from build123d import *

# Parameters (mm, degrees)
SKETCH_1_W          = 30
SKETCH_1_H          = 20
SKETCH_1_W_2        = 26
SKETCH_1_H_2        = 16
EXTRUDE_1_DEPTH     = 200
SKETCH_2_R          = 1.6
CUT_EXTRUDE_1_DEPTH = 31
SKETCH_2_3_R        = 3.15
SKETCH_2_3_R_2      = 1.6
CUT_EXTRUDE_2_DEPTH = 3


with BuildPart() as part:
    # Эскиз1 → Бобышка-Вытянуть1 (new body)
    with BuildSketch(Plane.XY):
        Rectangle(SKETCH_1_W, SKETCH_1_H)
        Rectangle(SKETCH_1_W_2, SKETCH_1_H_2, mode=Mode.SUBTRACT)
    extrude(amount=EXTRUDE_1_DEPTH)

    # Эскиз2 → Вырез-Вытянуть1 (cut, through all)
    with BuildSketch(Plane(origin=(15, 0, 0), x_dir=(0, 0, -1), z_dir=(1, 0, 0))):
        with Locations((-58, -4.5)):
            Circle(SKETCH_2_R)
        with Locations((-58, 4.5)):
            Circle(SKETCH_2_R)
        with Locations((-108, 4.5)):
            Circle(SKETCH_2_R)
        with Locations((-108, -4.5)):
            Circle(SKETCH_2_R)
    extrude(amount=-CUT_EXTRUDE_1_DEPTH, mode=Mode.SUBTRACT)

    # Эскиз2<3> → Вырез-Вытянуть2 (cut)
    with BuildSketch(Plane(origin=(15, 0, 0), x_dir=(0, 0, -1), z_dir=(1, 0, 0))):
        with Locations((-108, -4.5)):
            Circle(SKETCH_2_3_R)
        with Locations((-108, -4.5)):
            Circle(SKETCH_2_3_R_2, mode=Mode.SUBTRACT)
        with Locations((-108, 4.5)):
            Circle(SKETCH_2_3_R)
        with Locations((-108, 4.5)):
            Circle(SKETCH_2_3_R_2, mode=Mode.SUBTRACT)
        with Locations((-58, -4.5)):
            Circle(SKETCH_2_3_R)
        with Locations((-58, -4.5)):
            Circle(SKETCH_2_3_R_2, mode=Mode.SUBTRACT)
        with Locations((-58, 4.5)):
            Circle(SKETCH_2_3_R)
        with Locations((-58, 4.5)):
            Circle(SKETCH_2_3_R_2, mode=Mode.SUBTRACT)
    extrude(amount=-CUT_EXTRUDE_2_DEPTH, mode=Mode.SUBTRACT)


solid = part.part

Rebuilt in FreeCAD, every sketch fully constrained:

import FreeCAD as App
import Part
import Sketcher
from FreeCAD import Vector

doc = App.newDocument("Part")
params = doc.addObject("Spreadsheet::Sheet", "Params")
for row, (alias, value) in enumerate([
    ("sketch1_width", "30 mm"),
    ("sketch1_width2", "26 mm"),
    ("sketch1_height", "20 mm"),
    ("sketch1_height2", "16 mm"),
    ("pad1_length", "200 mm"),
    ("sketch2_diameter", "3.2 mm"),
    ("sketch3_diameter", "6.3 mm"),
    ("sketch3_diameter2", "3.2 mm"),
    ("pocket2_length", "3 mm"),
], start=1):
    params.set(f"A{row}", alias)
    params.set(f"B{row}", "=" + value)
    params.setAlias(f"B{row}", alias)

body = doc.addObject("PartDesign::Body", "Body")

sketch1 = body.newObject("Sketcher::SketchObject", "Sketch")
sketch1.AttachmentSupport = (doc.getObject("XY_Plane"), [""])
sketch1.MapMode = "FlatFace"
sketch1.addGeometry([
    Part.LineSegment(Vector(-15, 10, 0), Vector(-15, -10, 0)),
    Part.LineSegment(Vector(-15, -10, 0), Vector(15, -10, 0)),
    Part.LineSegment(Vector(15, -10, 0), Vector(15, 10, 0)),
    Part.LineSegment(Vector(15, 10, 0), Vector(-15, 10, 0)),
    Part.LineSegment(Vector(13, -8, 0), Vector(-13, -8, 0)),
    Part.LineSegment(Vector(-13, -8, 0), Vector(-13, 8, 0)),
    Part.LineSegment(Vector(-13, 8, 0), Vector(13, 8, 0)),
    Part.LineSegment(Vector(13, 8, 0), Vector(13, -8, 0)),
], False)
sketch1.addConstraint([
    Sketcher.Constraint("Coincident", 0, 2, 1, 1),
    Sketcher.Constraint("Coincident", 1, 2, 2, 1),
    Sketcher.Constraint("Coincident", 2, 2, 3, 1),
    Sketcher.Constraint("Coincident", 3, 2, 0, 1),
    Sketcher.Constraint("Coincident", 4, 2, 5, 1),
    Sketcher.Constraint("Coincident", 5, 2, 6, 1),
    Sketcher.Constraint("Coincident", 6, 2, 7, 1),
    Sketcher.Constraint("Coincident", 7, 2, 4, 1),
    Sketcher.Constraint("Vertical", 0),
    Sketcher.Constraint("Horizontal", 1),
    Sketcher.Constraint("Vertical", 2),
    Sketcher.Constraint("Horizontal", 3),
    Sketcher.Constraint("Horizontal", 4),
    Sketcher.Constraint("Vertical", 5),
    Sketcher.Constraint("Horizontal", 6),
    Sketcher.Constraint("Vertical", 7),
    Sketcher.Constraint("Symmetric", 0, 2, 2, 2, -1, 1),
    Sketcher.Constraint("Symmetric", 4, 2, 6, 2, -1, 1),
    Sketcher.Constraint("DistanceX", 1, 1, 1, 2, 30.0),
    Sketcher.Constraint("DistanceX", 4, 2, 4, 1, 26.0),
    Sketcher.Constraint("DistanceY", 0, 2, 0, 1, 20.0),
    Sketcher.Constraint("DistanceY", 5, 1, 5, 2, 16.0),
])
sketch1.setExpression("Constraints[18]", "Params.sketch1_width")
sketch1.setExpression("Constraints[19]", "Params.sketch1_width2")
sketch1.setExpression("Constraints[20]", "Params.sketch1_height")
sketch1.setExpression("Constraints[21]", "Params.sketch1_height2")
pad1 = body.newObject("PartDesign::Pad", "Pad")
pad1.Profile = sketch1
pad1.setExpression("Length", "Params.pad1_length")

sketch2 = body.newObject("Sketcher::SketchObject", "Sketch001")
sketch2.AttachmentSupport = (doc.getObject("YZ_Plane"), [""])
sketch2.MapMode = "FlatFace"
sketch2.AttachmentOffset = App.Placement(Vector(0, 0, 15), App.Rotation())
sketch2.addGeometry([
    Part.Circle(Vector(-4.5, 58, 0), Vector(0, 0, 1), 1.6),
    Part.Circle(Vector(4.5, 58, 0), Vector(0, 0, 1), 1.6),
    Part.Circle(Vector(4.5, 108, 0), Vector(0, 0, 1), 1.6),
    Part.Circle(Vector(-4.5, 108, 0), Vector(0, 0, 1), 1.6),
], False)
sketch2.addConstraint([
    Sketcher.Constraint("Equal", 0, 1),
    Sketcher.Constraint("Equal", 1, 2),
    Sketcher.Constraint("Equal", 2, 3),
    Sketcher.Constraint("Symmetric", 0, 3, 1, 3, -2),
    Sketcher.Constraint("Symmetric", 2, 3, 3, 3, -2),
    Sketcher.Constraint("Vertical", 1, 3, 2, 3),
    Sketcher.Constraint("Diameter", 0, 3.2),
    Sketcher.Constraint("DistanceY", -1, 1, 0, 3, 58.0),
    Sketcher.Constraint("DistanceY", -1, 1, 2, 3, 108.0),
    Sketcher.Constraint("DistanceX", 0, 3, 1, 3, 9.0),
])
sketch2.setExpression("Constraints[6]", "Params.sketch2_diameter")
pocket1 = body.newObject("PartDesign::Pocket", "Pocket")
pocket1.Profile = sketch2
pocket1.Type = "ThroughAll"

sketch3 = body.newObject("Sketcher::SketchObject", "Sketch002")
sketch3.AttachmentSupport = (doc.getObject("YZ_Plane"), [""])
sketch3.MapMode = "FlatFace"
sketch3.AttachmentOffset = App.Placement(Vector(0, 0, 15), App.Rotation())
sketch3.addGeometry([
    Part.Circle(Vector(-4.5, 108, 0), Vector(0, 0, 1), 3.1),
    Part.Circle(Vector(-4.5, 108, 0), Vector(0, 0, 1), 1.6),
    Part.Circle(Vector(4.5, 108, 0), Vector(0, 0, 1), 3.1),
    Part.Circle(Vector(4.5, 108, 0), Vector(0, 0, 1), 1.6),
    Part.Circle(Vector(-4.5, 58, 0), Vector(0, 0, 1), 3.1),
    Part.Circle(Vector(-4.5, 58, 0), Vector(0, 0, 1), 1.6),
    Part.Circle(Vector(4.5, 58, 0), Vector(0, 0, 1), 3.1),
    Part.Circle(Vector(4.5, 58, 0), Vector(0, 0, 1), 1.6),
], False)
sketch3.addConstraint([
    Sketcher.Constraint("Coincident", 1, 3, 0, 3),
    Sketcher.Constraint("Coincident", 3, 3, 2, 3),
    Sketcher.Constraint("Coincident", 5, 3, 4, 3),
    Sketcher.Constraint("Coincident", 7, 3, 6, 3),
    Sketcher.Constraint("Equal", 0, 2),
    Sketcher.Constraint("Equal", 1, 3),
    Sketcher.Constraint("Equal", 2, 4),
    Sketcher.Constraint("Equal", 3, 5),
    Sketcher.Constraint("Equal", 4, 6),
    Sketcher.Constraint("Equal", 5, 7),
    Sketcher.Constraint("Symmetric", 0, 3, 2, 3, -2),
    Sketcher.Constraint("Symmetric", 4, 3, 6, 3, -2),
    Sketcher.Constraint("Vertical", 1, 3, 4, 3),
    Sketcher.Constraint("Diameter", 0, 6.3),
    Sketcher.Constraint("Diameter", 1, 3.2),
    Sketcher.Constraint("DistanceY", -1, 1, 0, 3, 108.0),
    Sketcher.Constraint("DistanceY", -1, 1, 4, 3, 58.0),
    Sketcher.Constraint("DistanceX", 0, 3, 2, 3, 9.0),
])
sketch3.setExpression("Constraints[13]", "Params.sketch3_diameter")
sketch3.setExpression("Constraints[14]", "Params.sketch3_diameter2")
pocket2 = body.newObject("PartDesign::Pocket", "Pocket001")
pocket2.Profile = sketch3
pocket2.setExpression("Length", "Params.pocket2_length")

doc.recompute()
